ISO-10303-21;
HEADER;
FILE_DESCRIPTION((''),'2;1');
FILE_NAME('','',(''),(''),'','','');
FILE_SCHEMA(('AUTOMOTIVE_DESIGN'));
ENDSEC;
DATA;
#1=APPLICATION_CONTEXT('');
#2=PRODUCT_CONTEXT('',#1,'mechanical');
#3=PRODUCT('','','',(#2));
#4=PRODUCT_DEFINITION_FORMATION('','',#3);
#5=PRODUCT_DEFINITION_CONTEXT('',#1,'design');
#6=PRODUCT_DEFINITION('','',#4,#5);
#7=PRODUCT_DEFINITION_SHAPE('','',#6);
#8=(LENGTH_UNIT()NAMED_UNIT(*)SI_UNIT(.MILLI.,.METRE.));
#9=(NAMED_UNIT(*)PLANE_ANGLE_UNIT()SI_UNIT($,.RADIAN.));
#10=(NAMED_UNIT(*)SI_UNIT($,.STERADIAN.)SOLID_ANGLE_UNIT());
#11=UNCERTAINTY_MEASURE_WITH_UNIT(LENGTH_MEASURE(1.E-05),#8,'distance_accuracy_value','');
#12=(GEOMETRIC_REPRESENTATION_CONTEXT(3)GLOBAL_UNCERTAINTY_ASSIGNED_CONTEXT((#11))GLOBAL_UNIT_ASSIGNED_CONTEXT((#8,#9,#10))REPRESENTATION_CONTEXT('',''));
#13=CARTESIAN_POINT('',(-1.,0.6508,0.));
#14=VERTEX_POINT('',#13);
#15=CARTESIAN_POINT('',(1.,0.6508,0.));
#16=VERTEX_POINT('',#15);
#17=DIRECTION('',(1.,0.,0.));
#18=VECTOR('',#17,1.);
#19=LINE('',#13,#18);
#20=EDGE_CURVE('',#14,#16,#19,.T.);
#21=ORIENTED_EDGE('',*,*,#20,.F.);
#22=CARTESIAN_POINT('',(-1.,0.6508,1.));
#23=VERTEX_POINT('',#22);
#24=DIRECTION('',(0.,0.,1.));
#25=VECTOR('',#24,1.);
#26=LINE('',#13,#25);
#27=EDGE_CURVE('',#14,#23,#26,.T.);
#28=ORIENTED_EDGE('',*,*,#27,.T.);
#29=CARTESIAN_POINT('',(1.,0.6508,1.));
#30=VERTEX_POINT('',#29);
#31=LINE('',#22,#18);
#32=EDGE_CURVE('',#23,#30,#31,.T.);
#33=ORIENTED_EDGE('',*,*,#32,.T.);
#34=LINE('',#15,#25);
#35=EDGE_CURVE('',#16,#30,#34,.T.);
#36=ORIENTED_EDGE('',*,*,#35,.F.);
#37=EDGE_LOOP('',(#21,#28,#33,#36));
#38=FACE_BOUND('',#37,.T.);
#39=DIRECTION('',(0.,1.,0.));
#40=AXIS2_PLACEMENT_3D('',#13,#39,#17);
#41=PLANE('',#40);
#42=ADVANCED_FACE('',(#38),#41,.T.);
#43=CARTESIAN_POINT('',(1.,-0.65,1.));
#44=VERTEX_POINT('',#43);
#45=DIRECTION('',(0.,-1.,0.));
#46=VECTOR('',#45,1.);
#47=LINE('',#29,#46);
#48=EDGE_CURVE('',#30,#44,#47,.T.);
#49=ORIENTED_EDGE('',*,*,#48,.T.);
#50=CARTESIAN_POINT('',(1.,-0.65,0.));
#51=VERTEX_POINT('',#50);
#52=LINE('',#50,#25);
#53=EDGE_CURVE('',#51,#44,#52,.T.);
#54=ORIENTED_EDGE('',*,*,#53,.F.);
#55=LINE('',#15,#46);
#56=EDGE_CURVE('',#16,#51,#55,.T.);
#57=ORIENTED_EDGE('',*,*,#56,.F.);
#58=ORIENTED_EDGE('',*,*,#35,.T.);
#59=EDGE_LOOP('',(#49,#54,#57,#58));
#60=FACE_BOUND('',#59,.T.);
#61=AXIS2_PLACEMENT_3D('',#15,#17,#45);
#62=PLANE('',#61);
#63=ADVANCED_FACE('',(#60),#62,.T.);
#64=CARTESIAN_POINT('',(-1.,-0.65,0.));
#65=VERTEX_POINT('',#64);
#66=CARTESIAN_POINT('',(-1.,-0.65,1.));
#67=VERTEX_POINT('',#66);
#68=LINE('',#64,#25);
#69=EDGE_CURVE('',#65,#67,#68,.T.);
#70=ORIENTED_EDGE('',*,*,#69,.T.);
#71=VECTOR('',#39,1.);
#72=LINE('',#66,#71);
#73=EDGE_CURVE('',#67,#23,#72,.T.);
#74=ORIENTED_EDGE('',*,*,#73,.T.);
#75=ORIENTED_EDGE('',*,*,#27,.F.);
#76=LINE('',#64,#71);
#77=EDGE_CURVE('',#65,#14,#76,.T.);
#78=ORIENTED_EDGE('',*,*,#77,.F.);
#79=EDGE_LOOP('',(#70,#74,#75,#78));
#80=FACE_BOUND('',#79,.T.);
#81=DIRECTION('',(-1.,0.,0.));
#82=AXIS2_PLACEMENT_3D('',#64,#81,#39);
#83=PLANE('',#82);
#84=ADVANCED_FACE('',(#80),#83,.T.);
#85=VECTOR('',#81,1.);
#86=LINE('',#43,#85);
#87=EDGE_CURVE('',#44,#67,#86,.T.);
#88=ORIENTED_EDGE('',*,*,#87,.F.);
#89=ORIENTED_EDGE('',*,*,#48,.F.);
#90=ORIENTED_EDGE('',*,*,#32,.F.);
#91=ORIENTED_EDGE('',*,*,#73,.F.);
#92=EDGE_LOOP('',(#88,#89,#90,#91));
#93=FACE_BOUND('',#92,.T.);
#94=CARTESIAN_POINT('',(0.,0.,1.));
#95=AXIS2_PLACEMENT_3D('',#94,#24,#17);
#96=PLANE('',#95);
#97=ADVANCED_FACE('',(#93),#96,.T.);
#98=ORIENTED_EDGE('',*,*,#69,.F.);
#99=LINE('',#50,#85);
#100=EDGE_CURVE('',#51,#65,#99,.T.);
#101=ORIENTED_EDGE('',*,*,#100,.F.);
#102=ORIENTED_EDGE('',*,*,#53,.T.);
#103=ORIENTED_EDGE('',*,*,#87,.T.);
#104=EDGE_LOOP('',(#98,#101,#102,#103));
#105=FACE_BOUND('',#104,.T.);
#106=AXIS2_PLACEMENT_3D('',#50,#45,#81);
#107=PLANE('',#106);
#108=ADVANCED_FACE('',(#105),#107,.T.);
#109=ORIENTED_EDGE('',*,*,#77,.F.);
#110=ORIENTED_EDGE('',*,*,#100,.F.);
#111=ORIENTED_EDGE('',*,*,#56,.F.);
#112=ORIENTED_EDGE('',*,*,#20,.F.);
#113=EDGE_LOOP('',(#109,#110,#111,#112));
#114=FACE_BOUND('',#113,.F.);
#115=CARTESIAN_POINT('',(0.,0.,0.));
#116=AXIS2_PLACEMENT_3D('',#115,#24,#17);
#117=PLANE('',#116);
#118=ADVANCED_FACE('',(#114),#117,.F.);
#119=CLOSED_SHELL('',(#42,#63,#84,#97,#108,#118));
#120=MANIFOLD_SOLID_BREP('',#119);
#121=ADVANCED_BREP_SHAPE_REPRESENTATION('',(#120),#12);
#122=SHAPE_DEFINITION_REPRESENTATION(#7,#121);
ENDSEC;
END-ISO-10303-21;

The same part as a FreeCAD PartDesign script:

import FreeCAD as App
import Part
import Sketcher

V = App.Vector
Q = App.Units.Quantity


def add_polygon(sketch, points):
    """Adds a closed chain of lines whose ends are joined by coincident constraints."""
    first, n = sketch.GeometryCount, len(points)
    for a, b in zip(points, points[1:] + points[:1]):
        sketch.addGeometry(Part.LineSegment(App.Vector(*a, 0), App.Vector(*b, 0)), False)
    for i in range(n):
        sketch.addConstraint(Sketcher.Constraint("Coincident", first + i, 2, first + (i + 1) % n, 1))

doc = App.newDocument("Part")
body = doc.addObject("PartDesign::Body", "Body")

# Sketch on XY plane
sketch1 = body.newObject("Sketcher::SketchObject", "Sketch")
sketch1.AttachmentSupport = (doc.getObject("XY_Plane"), [""])
sketch1.MapMode = "FlatFace"
add_polygon(sketch1, [(1, 0.7), (-1, 0.7), (-1, -0.7), (1, -0.7)])  # lines 0-3
sketch1.addConstraint([
    Sketcher.Constraint("Horizontal", 0),
    Sketcher.Constraint("Vertical", 1),
    Sketcher.Constraint("Horizontal", 2),
    Sketcher.Constraint("Vertical", 3),
    Sketcher.Constraint("DistanceX", 0, 2, 0, 1, Q("2 mm")),
    Sketcher.Constraint("DistanceX", 0, 2, -1, 1, Q("1 mm")),
    Sketcher.Constraint("DistanceY", 1, 2, -1, 1, Q("0.65 mm")),
    Sketcher.Constraint("DistanceY", 1, 2, 1, 1, Q("1.3008 mm")),
])
pad1 = body.newObject("PartDesign::Pad", "Pad")
pad1.Profile = sketch1
pad1.Length = 1

doc.recompute()
